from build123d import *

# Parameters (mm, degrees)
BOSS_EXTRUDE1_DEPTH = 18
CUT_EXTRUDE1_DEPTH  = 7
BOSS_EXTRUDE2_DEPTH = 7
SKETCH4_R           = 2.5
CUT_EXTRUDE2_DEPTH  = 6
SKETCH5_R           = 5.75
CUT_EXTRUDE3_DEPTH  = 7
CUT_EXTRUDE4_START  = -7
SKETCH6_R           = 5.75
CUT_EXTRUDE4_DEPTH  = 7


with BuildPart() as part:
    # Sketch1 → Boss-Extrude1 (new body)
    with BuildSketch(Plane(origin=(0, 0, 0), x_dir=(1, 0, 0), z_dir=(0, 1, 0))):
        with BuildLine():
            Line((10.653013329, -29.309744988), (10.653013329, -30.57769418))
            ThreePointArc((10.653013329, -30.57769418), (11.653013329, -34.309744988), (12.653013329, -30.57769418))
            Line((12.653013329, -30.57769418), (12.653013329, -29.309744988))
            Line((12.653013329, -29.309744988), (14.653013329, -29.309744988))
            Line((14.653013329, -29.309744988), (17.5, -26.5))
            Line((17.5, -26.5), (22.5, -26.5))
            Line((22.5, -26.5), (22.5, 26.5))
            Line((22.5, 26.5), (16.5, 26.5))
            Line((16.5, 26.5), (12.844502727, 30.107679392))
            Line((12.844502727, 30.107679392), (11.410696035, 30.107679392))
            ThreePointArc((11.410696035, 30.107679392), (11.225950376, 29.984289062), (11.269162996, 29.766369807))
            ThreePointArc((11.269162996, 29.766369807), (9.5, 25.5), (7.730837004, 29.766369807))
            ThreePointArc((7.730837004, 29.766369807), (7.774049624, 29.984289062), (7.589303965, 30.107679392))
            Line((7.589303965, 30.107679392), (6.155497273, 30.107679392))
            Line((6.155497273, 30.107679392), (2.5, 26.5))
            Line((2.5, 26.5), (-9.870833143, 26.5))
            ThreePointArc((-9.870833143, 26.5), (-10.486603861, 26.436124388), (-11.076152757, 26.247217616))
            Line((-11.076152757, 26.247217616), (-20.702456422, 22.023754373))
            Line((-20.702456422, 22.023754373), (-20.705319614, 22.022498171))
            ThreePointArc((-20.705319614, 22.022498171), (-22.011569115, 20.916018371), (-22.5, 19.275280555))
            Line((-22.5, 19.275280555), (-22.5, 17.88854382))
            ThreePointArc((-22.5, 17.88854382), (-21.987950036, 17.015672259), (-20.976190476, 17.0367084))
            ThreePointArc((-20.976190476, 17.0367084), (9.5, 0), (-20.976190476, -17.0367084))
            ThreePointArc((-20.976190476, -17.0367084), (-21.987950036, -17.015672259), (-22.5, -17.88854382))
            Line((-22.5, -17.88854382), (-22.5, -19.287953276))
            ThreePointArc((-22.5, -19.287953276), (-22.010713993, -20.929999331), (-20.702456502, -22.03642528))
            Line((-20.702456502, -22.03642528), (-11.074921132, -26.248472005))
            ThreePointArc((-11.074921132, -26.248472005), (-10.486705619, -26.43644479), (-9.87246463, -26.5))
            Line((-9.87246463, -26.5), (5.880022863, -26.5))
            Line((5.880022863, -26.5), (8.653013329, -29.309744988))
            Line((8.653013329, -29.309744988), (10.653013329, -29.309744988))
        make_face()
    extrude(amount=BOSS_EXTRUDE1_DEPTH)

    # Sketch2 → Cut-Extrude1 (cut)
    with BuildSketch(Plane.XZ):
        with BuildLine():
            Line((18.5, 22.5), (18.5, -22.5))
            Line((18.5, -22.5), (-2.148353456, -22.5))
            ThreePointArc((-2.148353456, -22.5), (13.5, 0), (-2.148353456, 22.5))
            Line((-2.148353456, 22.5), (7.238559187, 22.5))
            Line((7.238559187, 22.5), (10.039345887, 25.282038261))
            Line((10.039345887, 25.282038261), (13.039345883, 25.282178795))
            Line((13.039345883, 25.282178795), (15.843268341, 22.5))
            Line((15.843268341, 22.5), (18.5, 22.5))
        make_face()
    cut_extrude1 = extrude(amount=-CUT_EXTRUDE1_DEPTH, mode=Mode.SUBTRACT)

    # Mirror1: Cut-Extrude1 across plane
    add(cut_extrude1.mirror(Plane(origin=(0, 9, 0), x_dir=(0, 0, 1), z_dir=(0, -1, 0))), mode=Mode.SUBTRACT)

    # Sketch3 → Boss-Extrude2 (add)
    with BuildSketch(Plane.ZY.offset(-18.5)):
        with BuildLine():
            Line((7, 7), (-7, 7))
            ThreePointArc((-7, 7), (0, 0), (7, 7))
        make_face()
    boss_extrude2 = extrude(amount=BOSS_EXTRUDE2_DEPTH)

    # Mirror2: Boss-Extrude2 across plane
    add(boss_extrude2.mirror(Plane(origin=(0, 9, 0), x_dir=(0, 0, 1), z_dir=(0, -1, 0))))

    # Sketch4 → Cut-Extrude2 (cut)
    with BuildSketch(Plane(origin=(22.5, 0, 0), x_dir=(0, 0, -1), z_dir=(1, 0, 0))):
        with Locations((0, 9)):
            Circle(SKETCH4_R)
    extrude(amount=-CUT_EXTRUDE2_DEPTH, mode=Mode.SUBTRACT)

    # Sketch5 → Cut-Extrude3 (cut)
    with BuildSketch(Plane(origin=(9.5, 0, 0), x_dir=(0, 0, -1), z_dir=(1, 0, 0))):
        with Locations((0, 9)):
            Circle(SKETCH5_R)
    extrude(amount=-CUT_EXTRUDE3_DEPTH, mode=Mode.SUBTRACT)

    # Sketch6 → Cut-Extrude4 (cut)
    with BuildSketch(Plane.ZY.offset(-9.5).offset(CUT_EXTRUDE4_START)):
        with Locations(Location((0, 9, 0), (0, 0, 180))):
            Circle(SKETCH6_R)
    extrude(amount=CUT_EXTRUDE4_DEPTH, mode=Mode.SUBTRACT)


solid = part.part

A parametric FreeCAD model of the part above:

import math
import FreeCAD as App
import Part
import Sketcher
from FreeCAD import Vector
Q = App.Units.Quantity

doc = App.newDocument("Part")
body = doc.addObject("PartDesign::Body", "Body")

# Sketch on XZ plane
sketch1 = doc.addObject("Sketcher::SketchObject", "Sketch")
body.addObject(sketch1)
sketch1.AttachmentSupport = (doc.XZ_Plane, [""])
sketch1.MapMode = "FlatFace"
sketch1.addGeometry([
    Part.LineSegment(Vector(10.653013, 29.309745, 0), Vector(10.653013, 30.577694, 0)),  # 0
    Part.ArcOfCircle(Part.Circle(Vector(11.653013, 32.309745, 0), Vector(0, 0, 1), 2), math.radians(-60), math.radians(240)),  # 1
    Part.LineSegment(Vector(12.653013, 30.577694, 0), Vector(12.653013, 29.309745, 0)),  # 2
    Part.LineSegment(Vector(12.653013, 29.309745, 0), Vector(14.653013, 29.309745, 0)),  # 3
    Part.LineSegment(Vector(14.653013, 29.309745, 0), Vector(17.5, 26.5, 0)),  # 4
    Part.LineSegment(Vector(17.5, 26.5, 0), Vector(22.5, 26.5, 0)),  # 5
    Part.LineSegment(Vector(22.5, 26.5, 0), Vector(22.5, -26.5, 0)),  # 6
    Part.LineSegment(Vector(22.5, -26.5, 0), Vector(16.5, -26.5, 0)),  # 7
    Part.LineSegment(Vector(16.5, -26.5, 0), Vector(12.844503, -30.107679, 0)),  # 8
    Part.LineSegment(Vector(12.844503, -30.107679, 0), Vector(11.410696, -30.107679, 0)),  # 9
    Part.ArcOfCircle(Part.Circle(Vector(11.410696, -29.907679, 0), Vector(0, 0, 1), 0.2), math.radians(135.045265), math.radians(270)),  # 10
    Part.ArcOfCircle(Part.Circle(Vector(9.5, -28, 0), Vector(0, 0, 1), 2.5), math.radians(-44.954734), math.radians(224.954734)),  # 11
    Part.ArcOfCircle(Part.Circle(Vector(7.589304, -29.907679, 0), Vector(0, 0, 1), 0.2), math.radians(-90), math.radians(44.954735)),  # 12
    Part.LineSegment(Vector(7.589304, -30.107679, 0), Vector(6.155497, -30.107679, 0)),  # 13
    Part.LineSegment(Vector(6.155497, -30.107679, 0), Vector(2.5, -26.5, 0)),  # 14
    Part.LineSegment(Vector(2.5, -26.5, 0), Vector(-9.870833, -26.5, 0)),  # 15
    Part.ArcOfCircle(Part.Circle(Vector(-9.870833, -23.5, 0), Vector(0, 0, 1), 3), math.radians(-113.689077), math.radians(-90)),  # 16
    Part.LineSegment(Vector(-11.076153, -26.247218, 0), Vector(-20.702456, -22.023754, 0)),  # 17
    Part.LineSegment(Vector(-20.702456, -22.023754, 0), Vector(-20.70532, -22.022498, 0)),  # 18
    Part.ArcOfCircle(Part.Circle(Vector(-19.5, -19.275281, 0), Vector(0, 0, 1), 3), math.radians(180), math.radians(246.310923)),  # 19
    Part.LineSegment(Vector(-22.5, -19.275281, 0), Vector(-22.5, -17.888544, 0)),  # 20
    Part.ArcOfCircle(Part.Circle(Vector(-21.5, -17.888544, 0), Vector(0, 0, 1), 1), math.radians(58.411864), math.radians(180)),  # 21
    Part.ArcOfCircle(Part.Circle(Vector(-10.5, 0, 0), Vector(0, 0, 1), 20), math.radians(-121.588136), math.radians(121.588136)),  # 22
    Part.ArcOfCircle(Part.Circle(Vector(-21.5, 17.888544, 0), Vector(0, 0, 1), 1), math.radians(180), math.radians(301.588136)),  # 23
    Part.LineSegment(Vector(-22.5, 17.888544, 0), Vector(-22.5, 19.287953, 0)),  # 24
    Part.ArcOfCircle(Part.Circle(Vector(-19.5, 19.287953, 0), Vector(0, 0, 1), 3), math.radians(113.629378), math.radians(180)),  # 25
    Part.LineSegment(Vector(-20.702457, 22.036425, 0), Vector(-11.074921, 26.248472, 0)),  # 26
    Part.ArcOfCircle(Part.Circle(Vector(-9.872465, 23.5, 0), Vector(0, 0, 1), 3), math.radians(90), math.radians(113.629378)),  # 27
    Part.LineSegment(Vector(-9.872465, 26.5, 0), Vector(5.880023, 26.5, 0)),  # 28
    Part.LineSegment(Vector(5.880023, 26.5, 0), Vector(8.653013, 29.309745, 0)),  # 29
    Part.LineSegment(Vector(8.653013, 29.309745, 0), Vector(10.653013, 29.309745, 0)),  # 30
], False)
sketch1.addConstraint([
    Sketcher.Constraint("Coincident", 0, 2, 1, 2),
    Sketcher.Constraint("Coincident", 1, 1, 2, 1),
    Sketcher.Constraint("Coincident", 2, 2, 3, 1),
    Sketcher.Constraint("Coincident", 3, 2, 4, 1),
    Sketcher.Constraint("Coincident", 4, 2, 5, 1),
    Sketcher.Constraint("Coincident", 5, 2, 6, 1),
    Sketcher.Constraint("Coincident", 6, 2, 7, 1),
    Sketcher.Constraint("Coincident", 7, 2, 8, 1),
    Sketcher.Constraint("Coincident", 8, 2, 9, 1),
    Sketcher.Constraint("Tangent", 9, 2, 10, 2),
    Sketcher.Constraint("Tangent", 10, 1, 11, 1),
    Sketcher.Constraint("Tangent", 11, 2, 12, 2),
    Sketcher.Constraint("Tangent", 12, 1, 13, 1),
    Sketcher.Constraint("Coincident", 13, 2, 14, 1),
    Sketcher.Constraint("Coincident", 14, 2, 15, 1),
    Sketcher.Constraint("Tangent", 15, 2, 16, 2),
    Sketcher.Constraint("Tangent", 16, 1, 17, 1),
    Sketcher.Constraint("Coincident", 17, 2, 18, 1),
    Sketcher.Constraint("Tangent", 18, 2, 19, 2),
    Sketcher.Constraint("Tangent", 19, 1, 20, 1),
    Sketcher.Constraint("Tangent", 20, 2, 21, 2),
    Sketcher.Constraint("Tangent", 21, 1, 22, 1),
    Sketcher.Constraint("Tangent", 22, 2, 23, 2),
    Sketcher.Constraint("Tangent", 23, 1, 24, 1),
    Sketcher.Constraint("Tangent", 24, 2, 25, 2),
    Sketcher.Constraint("Tangent", 25, 1, 26, 1),
    Sketcher.Constraint("Tangent", 26, 2, 27, 2),
    Sketcher.Constraint("Tangent", 27, 1, 28, 1),
    Sketcher.Constraint("Coincident", 28, 2, 29, 1),
    Sketcher.Constraint("Coincident", 29, 2, 30, 1),
    Sketcher.Constraint("Coincident", 30, 2, 0, 1),
    Sketcher.Constraint("Vertical", 0),
    Sketcher.Constraint("Vertical", 2),
    Sketcher.Constraint("Horizontal", 3),
    Sketcher.Constraint("Horizontal", 5),
    Sketcher.Constraint("Vertical", 6),
    Sketcher.Constraint("Horizontal", 7),
    Sketcher.Constraint("Horizontal", 9),
    Sketcher.Constraint("Horizontal", 13),
    Sketcher.Constraint("Horizontal", 15),
    Sketcher.Constraint("Vertical", 20),
    Sketcher.Constraint("Vertical", 24),
    Sketcher.Constraint("Horizontal", 28),
    Sketcher.Constraint("Horizontal", 30),
    Sketcher.Constraint("Equal", 10, 12),
    Sketcher.Constraint("Equal", 16, 19),
    Sketcher.Constraint("Equal", 21, 23),
    Sketcher.Constraint("Equal", 19, 25),
    Sketcher.Constraint("Equal", 25, 27),
    Sketcher.Constraint("Symmetric", 21, 3, 23, 3, -1),
    Sketcher.Constraint("Parallel", 4, 14),
    Sketcher.Constraint("Perpendicular", 14, 29),
    Sketcher.Constraint("Horizontal", 10, 3, 12, 3),
    Sketcher.Constraint("Horizontal", 0, 2, 1, 1),
    Sketcher.Constraint("Horizontal", 7, 2, 14, 2),
    Sketcher.Constraint("Horizontal", 5, 2, 27, 1),
    Sketcher.Constraint("Horizontal", 3, 2, 29, 2),
    Sketcher.Constraint("Vertical", 17, 2, 25, 1),
    Sketcher.Constraint("Equal", 9, 13),
    Sketcher.Constraint("Equal", 3, 30),
    Sketcher.Constraint("Equal", 8, 14),
    Sketcher.Constraint("Radius", 1, Q("2 mm")),
    Sketcher.Constraint("Radius", 16, Q("3 mm")),
    Sketcher.Constraint("Radius", 21, Q("1 mm")),
    Sketcher.Constraint("Radius", 22, Q("20 mm")),
    Sketcher.Constraint("Radius", 10, Q("0.2 mm")),
    Sketcher.Constraint("Radius", 11, Q("2.5 mm")),
    Sketcher.Constraint("DistanceX", 3, 1, 3, 2, Q("2 mm")),
    Sketcher.Constraint("DistanceX", 5, 1, 5, 2, Q("5 mm")),
    Sketcher.Constraint("DistanceX", 7, 2, 7, 1, Q("6 mm")),
    Sketcher.Constraint("DistanceY", 6, 2, 6, 1, Q("53 mm")),
    Sketcher.Constraint("Distance", 4, Q("4 mm")),
    Sketcher.Constraint("DistanceY", 11, 3, -1, 1, Q("28 mm")),
    Sketcher.Constraint("DistanceX", 19, 3, 11, 3, Q("29 mm")),
    Sketcher.Constraint("DistanceX", 21, 3, 22, 3, Q("11 mm")),
    Sketcher.Constraint("DistanceX", 0, 2, 1, 3, Q("1 mm")),
    Sketcher.Constraint("DistanceY", 2, 2, 1, 3, Q("3 mm")),
    Sketcher.Constraint("DistanceX", 11, 3, 6, 2, Q("13 mm")),
    Sketcher.Constraint("DistanceX", -1, 1, 11, 3, Q("9.5 mm")),
    Sketcher.Constraint("DistanceY", 16, 3, -1, 1, Q("23.5 mm")),
    Sketcher.Constraint("DistanceY", 24, 1, 24, 2, Q("1.399409 mm")),
    Sketcher.Constraint("DistanceY", 18, 2, -1, 1, Q("22.022498 mm")),
    Sketcher.Constraint("DistanceY", 12, 3, 19, 3, Q("10.632399 mm")),
    Sketcher.Constraint("DistanceY", 23, 3, 1, 3, Q("14.421201 mm")),
    Sketcher.Constraint("DistanceX", 12, 3, 8, 2, Q("5.255199 mm")),
    Sketcher.Constraint("Distance", 17, Q("10.512058 mm")),
    Sketcher.Constraint("DistanceX", 15, 2, 15, 1, Q("12.370833 mm")),
])
pad1 = doc.addObject("PartDesign::Pad", "Pad")
body.addObject(pad1)
pad1.Profile = sketch1
pad1.Length = 18
pad1.Reversed = True

# Sketch on XZ plane
sketch2 = doc.addObject("Sketcher::SketchObject", "Sketch001")
body.addObject(sketch2)
sketch2.AttachmentSupport = (doc.XZ_Plane, [""])
sketch2.MapMode = "FlatFace"
sketch2.addGeometry([
    Part.LineSegment(Vector(18.5, -22.5, 0), Vector(18.5, 22.5, 0)),  # 0
    Part.LineSegment(Vector(18.5, 22.5, 0), Vector(15.843268, 22.5, 0)),  # 1
    Part.LineSegment(Vector(15.843268, 22.5, 0), Vector(13.039346, 25.282179, 0)),  # 2
    Part.LineSegment(Vector(13.039346, 25.282179, 0), Vector(10.039346, 25.282038, 0)),  # 3
    Part.LineSegment(Vector(10.039346, 25.282038, 0), Vector(7.238559, 22.5, 0)),  # 4
    Part.LineSegment(Vector(7.238559, 22.5, 0), Vector(-2.148353, 22.5, 0)),  # 5
    Part.ArcOfCircle(Part.Circle(Vector(-10.5, 0, 0), Vector(0, 0, 1), 24), math.radians(-69.635865), math.radians(69.635865)),  # 6
    Part.LineSegment(Vector(-2.148353, -22.5, 0), Vector(18.5, -22.5, 0)),  # 7
], False)
sketch2.addConstraint([
    Sketcher.Constraint("Coincident", 0, 2, 1, 1),
    Sketcher.Constraint("Coincident", 1, 2, 2, 1),
    Sketcher.Constraint("Coincident", 2, 2, 3, 1),
    Sketcher.Constraint("Coincident", 3, 2, 4, 1),
    Sketcher.Constraint("Coincident", 4, 2, 5, 1),
    Sketcher.Constraint("Coincident", 5, 2, 6, 2),
    Sketcher.Constraint("Coincident", 6, 1, 7, 1),
    Sketcher.Constraint("Coincident", 7, 2, 0, 1),
    Sketcher.Constraint("Vertical", 0),
    Sketcher.Constraint("Horizontal", 1),
    Sketcher.Constraint("Horizontal", 5),
    Sketcher.Constraint("Horizontal", 7),
    Sketcher.Constraint("Symmetric", 5, 2, 6, 1, -1),
    Sketcher.Constraint("Horizontal", 1, 2, 4, 2),
    Sketcher.Constraint("Radius", 6, Q("24 mm")),
    Sketcher.Constraint("DistanceY", 0, 1, 0, 2, Q("45 mm")),
    Sketcher.Constraint("Distance", 3, Q("3 mm")),
    Sketcher.Constraint("DistanceX", 6, 3, 0, 2, Q("29 mm")),
    Sketcher.Constraint("DistanceX", 6, 3, -1, 1, Q("10.5 mm")),
    Sketcher.Constraint("Distance", 2, Q("3.95 mm")),
    Sketcher.Constraint("DistanceX", 1, 2, 1, 1, Q("2.656732 mm")),
    Sketcher.Constraint("DistanceX", 5, 2, 3, 2, Q("12.187699 mm")),
    Sketcher.Constraint("DistanceX", 5, 2, 5, 1, Q("9.386913 mm")),
    Sketcher.Constraint("DistanceY", -1, 1, 3, 2, Q("25.282038 mm")),
])
pocket1 = doc.addObject("PartDesign::Pocket", "Pocket")
body.addObject(pocket1)
pocket1.Profile = sketch2
pocket1.Length = 7
doc.recompute()

datumplane = doc.addObject("PartDesign::Plane", "DatumPlane")
body.addObject(datumplane)
datumplane.AttachmentSupport = (doc.XZ_Plane, [""])
datumplane.MapMode = "FlatFace"
datumplane.AttachmentOffset = App.Placement(Vector(0, 0, -9), App.Rotation())
mirrored = doc.addObject("PartDesign::Mirrored", "Mirrored")
body.addObject(mirrored)
mirrored.Originals = [pocket1]
mirrored.MirrorPlane = (datumplane, [""])
body.Tip = mirrored

# Sketch on YZ plane
sketch3 = doc.addObject("Sketcher::SketchObject", "Sketch002")
body.addObject(sketch3)
sketch3.AttachmentSupport = (doc.YZ_Plane, [""])
sketch3.MapMode = "FlatFace"
sketch3.AttachmentOffset = App.Placement(Vector(0, 0, 18.5), App.Rotation())
sketch3.addGeometry([
    Part.LineSegment(Vector(7, 7, 0), Vector(7, -7, 0)),
    Part.ArcOfCircle(Part.Circle(Vector(7, 0, 0), Vector(0, 0, 1), 7), math.radians(90), math.radians(270)),
], False)
sketch3.addConstraint([
    Sketcher.Constraint("Coincident", 0, 1, 1, 1),
    Sketcher.Constraint("Coincident", 1, 2, 0, 2),
    Sketcher.Constraint("Vertical", 0),
    Sketcher.Constraint("PointOnObject", 1, 3, -1),
    Sketcher.Constraint("Vertical", 1, 3, 0, 1),
    Sketcher.Constraint("Radius", 1, Q("7 mm")),
    Sketcher.Constraint("DistanceX", -1, 1, 1, 3, Q("7 mm")),
])
pad2 = doc.addObject("PartDesign::Pad", "Pad001")
body.addObject(pad2)
pad2.Profile = sketch3
pad2.Length = 7
pad2.Reversed = True
doc.recompute()

datumplane2 = doc.addObject("PartDesign::Plane", "DatumPlane001")
body.addObject(datumplane2)
datumplane2.AttachmentSupport = (doc.XZ_Plane, [""])
datumplane2.MapMode = "FlatFace"
datumplane2.AttachmentOffset = App.Placement(Vector(0, 0, -9), App.Rotation())
mirrored2 = doc.addObject("PartDesign::Mirrored", "Mirrored001")
body.addObject(mirrored2)
mirrored2.Originals = [pad2]
mirrored2.MirrorPlane = (datumplane2, [""])
body.Tip = mirrored2

# Sketch on YZ plane
sketch4 = doc.addObject("Sketcher::SketchObject", "Sketch003")
body.addObject(sketch4)
sketch4.AttachmentSupport = (doc.YZ_Plane, [""])
sketch4.MapMode = "FlatFace"
sketch4.AttachmentOffset = App.Placement(Vector(0, 0, 22.5), App.Rotation())
sketch4.addGeometry(Part.Circle(Vector(9, 0, 0), Vector(0, 0, 1), 2.5), False)
sketch4.addConstraint([
    Sketcher.Constraint("PointOnObject", 0, 3, -1),
    Sketcher.Constraint("Diameter", 0, Q("5 mm")),
    Sketcher.Constraint("DistanceX", -1, 1, 0, 3, Q("9 mm")),
])
pocket2 = doc.addObject("PartDesign::Pocket", "Pocket001")
body.addObject(pocket2)
pocket2.Profile = sketch4
pocket2.Length = 6

# Sketch on YZ plane
sketch5 = doc.addObject("Sketcher::SketchObject", "Sketch004")
body.addObject(sketch5)
sketch5.AttachmentSupport = (doc.YZ_Plane, [""])
sketch5.MapMode = "FlatFace"
sketch5.AttachmentOffset = App.Placement(Vector(0, 0, 9.5), App.Rotation())
sketch5.addGeometry(Part.Circle(Vector(9, 0, 0), Vector(0, 0, 1), 5.75), False)
sketch5.addConstraint([
    Sketcher.Constraint("PointOnObject", 0, 3, -1),
    Sketcher.Constraint("Diameter", 0, Q("11.5 mm")),
    Sketcher.Constraint("DistanceX", -1, 1, 0, 3, Q("9 mm")),
])
pocket3 = doc.addObject("PartDesign::Pocket", "Pocket002")
body.addObject(pocket3)
pocket3.Profile = sketch5
pocket3.Length = 7

# Sketch on YZ plane
sketch6 = doc.addObject("Sketcher::SketchObject", "Sketch005")
body.addObject(sketch6)
sketch6.AttachmentSupport = (doc.YZ_Plane, [""])
sketch6.MapMode = "FlatFace"
sketch6.AttachmentOffset = App.Placement(Vector(0, 0, 16.5), App.Rotation())
sketch6.addGeometry(Part.Circle(Vector(9, 0, 0), Vector(0, 0, 1), 5.75), False)
sketch6.addConstraint([
    Sketcher.Constraint("PointOnObject", 0, 3, -1),
    Sketcher.Constraint("Diameter", 0, Q("11.5 mm")),
    Sketcher.Constraint("DistanceX", -1, 1, 0, 3, Q("9 mm")),
])
pocket4 = doc.addObject("PartDesign::Pocket", "Pocket003")
body.addObject(pocket4)
pocket4.Profile = sketch6
pocket4.Length = 7

doc.recompute()
